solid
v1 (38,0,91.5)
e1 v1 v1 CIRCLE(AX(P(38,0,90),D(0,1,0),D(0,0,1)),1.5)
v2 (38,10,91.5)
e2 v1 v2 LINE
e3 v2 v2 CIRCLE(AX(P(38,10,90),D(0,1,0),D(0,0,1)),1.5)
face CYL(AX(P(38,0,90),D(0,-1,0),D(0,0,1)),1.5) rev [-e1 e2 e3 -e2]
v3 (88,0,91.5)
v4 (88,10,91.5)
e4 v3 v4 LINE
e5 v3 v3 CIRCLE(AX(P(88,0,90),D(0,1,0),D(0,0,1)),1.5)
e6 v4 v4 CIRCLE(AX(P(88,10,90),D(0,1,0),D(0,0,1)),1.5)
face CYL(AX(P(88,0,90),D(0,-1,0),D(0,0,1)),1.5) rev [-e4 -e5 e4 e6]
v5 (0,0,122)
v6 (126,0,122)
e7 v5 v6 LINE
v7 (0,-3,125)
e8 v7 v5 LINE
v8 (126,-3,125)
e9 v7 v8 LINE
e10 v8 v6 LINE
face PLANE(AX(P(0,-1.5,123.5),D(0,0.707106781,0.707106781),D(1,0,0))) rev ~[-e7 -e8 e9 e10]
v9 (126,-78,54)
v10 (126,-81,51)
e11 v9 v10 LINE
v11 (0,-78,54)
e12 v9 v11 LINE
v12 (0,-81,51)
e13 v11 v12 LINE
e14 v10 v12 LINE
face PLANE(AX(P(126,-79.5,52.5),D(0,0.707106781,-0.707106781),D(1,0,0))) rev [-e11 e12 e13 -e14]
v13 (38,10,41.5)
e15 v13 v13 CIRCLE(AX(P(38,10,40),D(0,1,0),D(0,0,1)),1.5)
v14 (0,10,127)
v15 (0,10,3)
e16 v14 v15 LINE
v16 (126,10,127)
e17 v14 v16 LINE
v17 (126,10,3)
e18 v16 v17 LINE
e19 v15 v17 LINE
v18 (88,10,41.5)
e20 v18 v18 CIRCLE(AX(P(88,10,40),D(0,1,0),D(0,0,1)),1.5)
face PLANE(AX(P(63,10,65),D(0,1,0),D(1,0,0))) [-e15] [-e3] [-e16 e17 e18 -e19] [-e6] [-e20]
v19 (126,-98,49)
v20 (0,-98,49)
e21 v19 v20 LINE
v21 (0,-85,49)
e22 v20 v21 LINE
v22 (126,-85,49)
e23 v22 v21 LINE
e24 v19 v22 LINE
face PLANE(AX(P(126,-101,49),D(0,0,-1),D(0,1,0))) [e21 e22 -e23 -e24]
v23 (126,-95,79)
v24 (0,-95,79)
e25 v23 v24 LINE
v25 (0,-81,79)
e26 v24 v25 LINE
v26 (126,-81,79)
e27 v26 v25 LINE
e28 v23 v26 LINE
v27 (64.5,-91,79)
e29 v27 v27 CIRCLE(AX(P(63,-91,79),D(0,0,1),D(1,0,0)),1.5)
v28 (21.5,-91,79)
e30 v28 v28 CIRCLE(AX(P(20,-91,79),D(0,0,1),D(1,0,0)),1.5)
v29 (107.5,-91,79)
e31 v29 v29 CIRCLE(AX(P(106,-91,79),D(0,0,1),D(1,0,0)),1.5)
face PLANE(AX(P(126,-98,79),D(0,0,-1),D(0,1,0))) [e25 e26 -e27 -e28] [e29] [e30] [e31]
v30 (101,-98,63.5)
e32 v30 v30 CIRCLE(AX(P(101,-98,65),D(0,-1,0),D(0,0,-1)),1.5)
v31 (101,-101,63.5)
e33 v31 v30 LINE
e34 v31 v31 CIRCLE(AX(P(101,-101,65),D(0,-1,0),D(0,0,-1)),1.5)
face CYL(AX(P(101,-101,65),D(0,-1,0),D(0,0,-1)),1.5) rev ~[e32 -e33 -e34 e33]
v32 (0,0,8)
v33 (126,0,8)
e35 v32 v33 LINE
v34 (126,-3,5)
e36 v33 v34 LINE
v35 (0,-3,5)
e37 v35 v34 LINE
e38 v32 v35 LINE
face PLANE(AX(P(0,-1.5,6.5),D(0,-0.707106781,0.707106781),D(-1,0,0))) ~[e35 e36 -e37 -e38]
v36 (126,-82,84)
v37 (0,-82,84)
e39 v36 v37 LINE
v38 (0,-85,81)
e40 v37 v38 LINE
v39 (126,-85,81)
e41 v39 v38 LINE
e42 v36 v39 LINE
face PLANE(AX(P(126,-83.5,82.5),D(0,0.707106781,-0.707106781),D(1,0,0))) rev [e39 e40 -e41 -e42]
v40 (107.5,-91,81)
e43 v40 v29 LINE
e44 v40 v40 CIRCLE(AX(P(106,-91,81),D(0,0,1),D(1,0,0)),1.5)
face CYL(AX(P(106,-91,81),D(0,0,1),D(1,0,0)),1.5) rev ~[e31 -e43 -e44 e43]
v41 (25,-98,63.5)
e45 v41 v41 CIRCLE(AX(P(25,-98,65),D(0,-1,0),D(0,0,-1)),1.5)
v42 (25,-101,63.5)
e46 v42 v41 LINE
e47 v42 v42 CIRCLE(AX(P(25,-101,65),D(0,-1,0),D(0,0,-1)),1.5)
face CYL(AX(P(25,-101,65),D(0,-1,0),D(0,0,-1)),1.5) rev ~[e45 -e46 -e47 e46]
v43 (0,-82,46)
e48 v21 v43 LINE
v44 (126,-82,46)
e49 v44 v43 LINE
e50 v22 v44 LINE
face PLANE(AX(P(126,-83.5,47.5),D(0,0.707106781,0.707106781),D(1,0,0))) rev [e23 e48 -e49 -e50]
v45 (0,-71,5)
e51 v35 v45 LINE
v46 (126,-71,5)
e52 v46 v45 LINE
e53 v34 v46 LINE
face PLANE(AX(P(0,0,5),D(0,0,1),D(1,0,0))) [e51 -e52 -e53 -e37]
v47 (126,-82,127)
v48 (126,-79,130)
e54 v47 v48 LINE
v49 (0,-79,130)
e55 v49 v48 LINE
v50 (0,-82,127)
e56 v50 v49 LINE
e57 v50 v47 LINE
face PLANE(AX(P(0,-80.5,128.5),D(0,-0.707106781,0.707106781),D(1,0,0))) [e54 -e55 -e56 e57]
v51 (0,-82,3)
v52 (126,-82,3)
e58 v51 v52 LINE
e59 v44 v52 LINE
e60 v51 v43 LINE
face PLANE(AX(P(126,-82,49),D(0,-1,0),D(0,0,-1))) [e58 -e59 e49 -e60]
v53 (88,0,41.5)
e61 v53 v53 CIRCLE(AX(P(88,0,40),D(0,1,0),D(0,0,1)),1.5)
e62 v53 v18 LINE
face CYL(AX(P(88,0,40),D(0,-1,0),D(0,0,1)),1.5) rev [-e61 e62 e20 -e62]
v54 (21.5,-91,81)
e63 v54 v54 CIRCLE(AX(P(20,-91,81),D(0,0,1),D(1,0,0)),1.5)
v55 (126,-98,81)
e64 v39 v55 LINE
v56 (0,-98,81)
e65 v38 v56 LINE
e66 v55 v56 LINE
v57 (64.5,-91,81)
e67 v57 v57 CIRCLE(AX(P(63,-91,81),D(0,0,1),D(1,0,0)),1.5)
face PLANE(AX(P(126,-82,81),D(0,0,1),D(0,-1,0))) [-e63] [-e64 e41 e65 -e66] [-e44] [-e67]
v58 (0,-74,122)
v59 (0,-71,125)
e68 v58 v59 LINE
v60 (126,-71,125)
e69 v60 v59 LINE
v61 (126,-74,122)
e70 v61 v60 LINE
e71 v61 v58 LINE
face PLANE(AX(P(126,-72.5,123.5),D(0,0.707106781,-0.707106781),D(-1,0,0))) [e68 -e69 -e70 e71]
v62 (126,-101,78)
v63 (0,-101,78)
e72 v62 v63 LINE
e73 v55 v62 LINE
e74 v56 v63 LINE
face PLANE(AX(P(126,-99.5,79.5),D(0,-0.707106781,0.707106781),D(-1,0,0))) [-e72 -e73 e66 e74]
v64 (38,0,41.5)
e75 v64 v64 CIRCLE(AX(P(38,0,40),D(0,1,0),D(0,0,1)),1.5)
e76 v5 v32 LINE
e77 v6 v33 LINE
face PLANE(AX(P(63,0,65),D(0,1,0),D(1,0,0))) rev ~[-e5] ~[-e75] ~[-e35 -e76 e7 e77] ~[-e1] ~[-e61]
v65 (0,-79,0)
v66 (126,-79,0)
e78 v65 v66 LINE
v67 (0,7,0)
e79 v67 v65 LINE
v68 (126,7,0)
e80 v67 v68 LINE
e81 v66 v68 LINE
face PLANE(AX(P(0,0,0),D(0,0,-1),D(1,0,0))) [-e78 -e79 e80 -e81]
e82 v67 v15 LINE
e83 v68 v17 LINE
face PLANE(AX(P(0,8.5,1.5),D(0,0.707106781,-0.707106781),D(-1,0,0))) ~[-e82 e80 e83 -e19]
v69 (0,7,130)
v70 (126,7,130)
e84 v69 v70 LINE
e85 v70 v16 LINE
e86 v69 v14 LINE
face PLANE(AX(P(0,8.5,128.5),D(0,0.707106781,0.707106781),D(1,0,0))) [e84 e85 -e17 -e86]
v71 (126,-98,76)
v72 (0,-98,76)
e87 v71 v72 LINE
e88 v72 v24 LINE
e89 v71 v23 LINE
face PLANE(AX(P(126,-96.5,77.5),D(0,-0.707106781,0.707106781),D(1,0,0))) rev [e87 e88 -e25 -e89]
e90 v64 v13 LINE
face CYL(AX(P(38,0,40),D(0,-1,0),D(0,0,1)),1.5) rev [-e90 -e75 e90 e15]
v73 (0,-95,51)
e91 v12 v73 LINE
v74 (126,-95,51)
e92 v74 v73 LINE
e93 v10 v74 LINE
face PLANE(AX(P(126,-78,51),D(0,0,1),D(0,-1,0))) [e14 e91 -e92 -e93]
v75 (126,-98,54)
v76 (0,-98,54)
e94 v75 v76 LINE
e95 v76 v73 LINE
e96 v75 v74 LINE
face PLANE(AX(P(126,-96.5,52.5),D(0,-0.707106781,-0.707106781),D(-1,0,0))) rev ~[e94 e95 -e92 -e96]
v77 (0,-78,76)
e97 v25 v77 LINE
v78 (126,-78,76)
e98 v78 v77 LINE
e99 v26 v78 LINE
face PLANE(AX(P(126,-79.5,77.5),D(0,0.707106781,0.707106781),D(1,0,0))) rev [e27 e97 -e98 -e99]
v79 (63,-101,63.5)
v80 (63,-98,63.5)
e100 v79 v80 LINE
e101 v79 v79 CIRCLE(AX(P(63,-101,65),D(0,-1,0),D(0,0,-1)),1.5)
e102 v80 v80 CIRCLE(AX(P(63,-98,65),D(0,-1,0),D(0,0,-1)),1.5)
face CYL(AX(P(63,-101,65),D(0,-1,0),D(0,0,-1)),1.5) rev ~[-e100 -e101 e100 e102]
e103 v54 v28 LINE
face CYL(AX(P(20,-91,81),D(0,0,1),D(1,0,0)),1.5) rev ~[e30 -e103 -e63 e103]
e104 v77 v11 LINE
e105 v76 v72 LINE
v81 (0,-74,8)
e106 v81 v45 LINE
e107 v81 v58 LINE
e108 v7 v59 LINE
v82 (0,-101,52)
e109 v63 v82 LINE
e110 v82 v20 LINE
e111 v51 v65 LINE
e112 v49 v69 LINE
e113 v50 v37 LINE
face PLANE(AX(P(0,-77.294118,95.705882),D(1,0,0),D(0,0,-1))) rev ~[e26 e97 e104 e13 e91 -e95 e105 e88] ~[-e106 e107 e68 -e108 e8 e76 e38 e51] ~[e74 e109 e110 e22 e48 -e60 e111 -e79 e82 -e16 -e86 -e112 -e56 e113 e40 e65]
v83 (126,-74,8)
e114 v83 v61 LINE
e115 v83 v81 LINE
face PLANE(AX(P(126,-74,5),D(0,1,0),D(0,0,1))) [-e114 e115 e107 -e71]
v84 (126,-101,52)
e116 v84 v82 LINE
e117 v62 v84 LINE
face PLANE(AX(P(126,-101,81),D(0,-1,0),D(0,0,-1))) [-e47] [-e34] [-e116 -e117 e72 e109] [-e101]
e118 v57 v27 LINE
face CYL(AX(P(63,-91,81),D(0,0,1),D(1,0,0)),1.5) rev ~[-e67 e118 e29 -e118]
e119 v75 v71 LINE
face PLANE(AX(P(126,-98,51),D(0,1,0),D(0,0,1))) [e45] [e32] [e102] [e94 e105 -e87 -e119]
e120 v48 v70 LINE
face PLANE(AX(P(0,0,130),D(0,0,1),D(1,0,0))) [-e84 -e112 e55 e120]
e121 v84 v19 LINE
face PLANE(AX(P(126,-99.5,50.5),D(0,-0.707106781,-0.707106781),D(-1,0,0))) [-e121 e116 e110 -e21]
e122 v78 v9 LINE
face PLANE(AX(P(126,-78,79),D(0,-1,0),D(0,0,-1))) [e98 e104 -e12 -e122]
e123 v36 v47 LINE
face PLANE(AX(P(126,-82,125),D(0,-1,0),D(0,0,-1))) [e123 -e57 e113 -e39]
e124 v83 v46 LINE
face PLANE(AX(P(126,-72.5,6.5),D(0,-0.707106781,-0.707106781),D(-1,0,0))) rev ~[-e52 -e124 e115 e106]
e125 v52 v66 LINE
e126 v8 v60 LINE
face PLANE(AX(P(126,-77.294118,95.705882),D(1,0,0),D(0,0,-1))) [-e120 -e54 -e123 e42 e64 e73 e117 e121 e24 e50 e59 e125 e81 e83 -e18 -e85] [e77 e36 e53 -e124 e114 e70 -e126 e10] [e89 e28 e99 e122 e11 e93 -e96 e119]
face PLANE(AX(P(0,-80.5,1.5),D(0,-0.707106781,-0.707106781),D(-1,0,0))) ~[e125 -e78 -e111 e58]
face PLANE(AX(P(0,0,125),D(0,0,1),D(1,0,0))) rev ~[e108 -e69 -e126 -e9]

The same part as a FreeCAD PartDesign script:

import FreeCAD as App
import Part
import Sketcher
from FreeCAD import Vector


def edges_at(feature, points):
    """Names of the edges that pass closest to the given points."""
    edges = feature.Shape.Edges
    near = lambda p: min(range(len(edges)), key=lambda i: edges[i].distToShape(Part.Vertex(*p))[0])
    return sorted({f"Edge{near(p) + 1}" for p in points})


def add_polygon(sketch, points):
    """Adds a closed chain of lines whose ends are joined by coincident constraints."""
    first, n = sketch.GeometryCount, len(points)
    for a, b in zip(points, points[1:] + points[:1]):
        sketch.addGeometry(Part.LineSegment(App.Vector(*a, 0), App.Vector(*b, 0)), False)
    for i in range(n):
        sketch.addConstraint(Sketcher.Constraint("Coincident", first + i, 2, first + (i + 1) % n, 1))

doc = App.newDocument("Part")
params = doc.addObject("Spreadsheet::Sheet", "Params")
for row, (alias, value) in enumerate([
    ("sketch1_diameter", "3 mm"),
    ("sketch1_width", "126 mm"),
    ("sketch1_height", "130 mm"),
    ("pad1_length", "10 mm"),
    ("sketch2_width", "126 mm"),
    ("sketch2_height", "5 mm"),
    ("pad2_length", "82 mm"),
    ("sketch3_width", "8 mm"),
    ("sketch3_width2", "19 mm"),
    ("sketch3_width3", "20 mm"),
    ("sketch3_height", "44 mm"),
    ("sketch3_height2", "32 mm"),
    ("pad3_length", "126 mm"),
    ("sketch4_diameter", "3 mm"),
    ("pocket1_length", "3 mm"),
    ("sketch5_diameter", "3 mm"),
    ("pocket2_length", "2 mm"),
    ("chamfer_size", "3 mm"),
], start=1):
    params.set(f"A{row}", alias)
    params.set(f"B{row}", "=" + value)
    params.setAlias(f"B{row}", alias)

body = doc.addObject("PartDesign::Body", "Body")

sketch1 = doc.addObject("Sketcher::SketchObject", "Sketch")
body.addObject(sketch1)
sketch1.AttachmentSupport = (doc.XZ_Plane, [""])
sketch1.MapMode = "FlatFace"
add_polygon(sketch1, [(0, 0), (0, 130), (126, 130), (126, 0)])
sketch1.addGeometry(Part.Circle(Vector(38, 90, 0), Vector(0, 0, 1), 1.5), False)
sketch1.addGeometry(Part.Circle(Vector(88, 90, 0), Vector(0, 0, 1), 1.5), False)
sketch1.addGeometry(Part.Circle(Vector(38, 40, 0), Vector(0, 0, 1), 1.5), False)
sketch1.addGeometry(Part.Circle(Vector(88, 40, 0), Vector(0, 0, 1), 1.5), False)
sketch1.addConstraint(Sketcher.Constraint("Vertical", 0))
sketch1.addConstraint(Sketcher.Constraint("Horizontal", 1))
sketch1.addConstraint(Sketcher.Constraint("Vertical", 2))
sketch1.addConstraint(Sketcher.Constraint("Horizontal", 3))
sketch1.addConstraint(Sketcher.Constraint("Coincident", 3, 2, -1, 1))
sketch1.addConstraint(Sketcher.Constraint("Equal", 4, 5))
sketch1.addConstraint(Sketcher.Constraint("Equal", 5, 6))
sketch1.addConstraint(Sketcher.Constraint("Equal", 6, 7))
sketch1.addConstraint(Sketcher.Constraint("Horizontal", 4, 3, 5, 3))
sketch1.addConstraint(Sketcher.Constraint("Horizontal", 6, 3, 7, 3))
sketch1.addConstraint(Sketcher.Constraint("Vertical", 4, 3, 6, 3))
sketch1.addConstraint(Sketcher.Constraint("Vertical", 5, 3, 7, 3))
sketch1.addConstraint(Sketcher.Constraint("Diameter", 4, 3.0))
sketch1.addConstraint(Sketcher.Constraint("DistanceX", 1, 1, 1, 2, 126.0))
sketch1.addConstraint(Sketcher.Constraint("DistanceY", 0, 1, 0, 2, 130.0))
sketch1.addConstraint(Sketcher.Constraint("DistanceX", -1, 1, 4, 3, 38.0))
sketch1.addConstraint(Sketcher.Constraint("DistanceY", -1, 1, 4, 3, 90.0))
sketch1.addConstraint(Sketcher.Constraint("DistanceX", -1, 1, 5, 3, 88.0))
sketch1.addConstraint(Sketcher.Constraint("DistanceY", -1, 1, 6, 3, 40.0))
sketch1.setExpression("Constraints[16]", "Params.sketch1_diameter")
sketch1.setExpression("Constraints[17]", "Params.sketch1_width")
sketch1.setExpression("Constraints[18]", "Params.sketch1_height")
pad1 = doc.addObject("PartDesign::Pad", "Pad")
body.addObject(pad1)
pad1.Profile = sketch1
pad1.setExpression("Length", "Params.pad1_length")
pad1.Reversed = True

sketch2 = doc.addObject("Sketcher::SketchObject", "Sketch001")
body.addObject(sketch2)
sketch2.AttachmentSupport = (doc.XZ_Plane, [""])
sketch2.MapMode = "FlatFace"
add_polygon(sketch2, [(0, 130), (0, 125), (126, 125), (126, 130)])
add_polygon(sketch2, [(0, 5), (0, 0), (126, 0), (126, 5)])
sketch2.addConstraint(Sketcher.Constraint("Vertical", 0))
sketch2.addConstraint(Sketcher.Constraint("Horizontal", 1))
sketch2.addConstraint(Sketcher.Constraint("Vertical", 2))
sketch2.addConstraint(Sketcher.Constraint("Horizontal", 3))
sketch2.addConstraint(Sketcher.Constraint("Vertical", 4))
sketch2.addConstraint(Sketcher.Constraint("Horizontal", 5))
sketch2.addConstraint(Sketcher.Constraint("Vertical", 6))
sketch2.addConstraint(Sketcher.Constraint("Horizontal", 7))
sketch2.addConstraint(Sketcher.Constraint("Coincident", 4, 2, -1, 1))
sketch2.addConstraint(Sketcher.Constraint("PointOnObject", 0, 2, -2))
sketch2.addConstraint(Sketcher.Constraint("Vertical", 2, 2, 5, 2))
sketch2.addConstraint(Sketcher.Constraint("Equal", 2, 4))
sketch2.addConstraint(Sketcher.Constraint("DistanceX", 1, 1, 1, 2, 126.0))
sketch2.addConstraint(Sketcher.Constraint("DistanceY", 0, 2, 0, 1, 5.0))
sketch2.addConstraint(Sketcher.Constraint("DistanceY", -1, 1, 0, 2, 125.0))
sketch2.setExpression("Constraints[20]", "Params.sketch2_width")
sketch2.setExpression("Constraints[21]", "Params.sketch2_height")
pad2 = doc.addObject("PartDesign::Pad", "Pad001")
body.addObject(pad2)
pad2.Profile = sketch2
pad2.setExpression("Length", "Params.pad2_length")

sketch3 = doc.addObject("Sketcher::SketchObject", "Sketch002")
body.addObject(sketch3)
sketch3.AttachmentSupport = (doc.YZ_Plane, [""])
sketch3.MapMode = "FlatFace"
sketch3.AttachmentOffset = App.Placement(Vector(0, 0, 126), App.Rotation())
add_polygon(sketch3, [(-74, 125), (-82, 125), (-82, 81), (-101, 81), (-101, 49), (-82, 49), (-82, 5), (-74, 5)])
add_polygon(sketch3, [(-98, 51), (-98, 79), (-78, 79), (-78, 51)])
sketch3.addConstraint(Sketcher.Constraint("Horizontal", 0))
sketch3.addConstraint(Sketcher.Constraint("Vertical", 1))
sketch3.addConstraint(Sketcher.Constraint("Horizontal", 2))
sketch3.addConstraint(Sketcher.Constraint("Vertical", 3))
sketch3.addConstraint(Sketcher.Constraint("Horizontal", 4))
sketch3.addConstraint(Sketcher.Constraint("Vertical", 5))
sketch3.addConstraint(Sketcher.Constraint("Horizontal", 6))
sketch3.addConstraint(Sketcher.Constraint("Vertical", 7))
sketch3.addConstraint(Sketcher.Constraint("Vertical", 8))
sketch3.addConstraint(Sketcher.Constraint("Horizontal", 9))
sketch3.addConstraint(Sketcher.Constraint("Vertical", 10))
sketch3.addConstraint(Sketcher.Constraint("Horizontal", 11))
sketch3.addConstraint(Sketcher.Constraint("Vertical", 1, 2, 4, 2))
sketch3.addConstraint(Sketcher.Constraint("Equal", 1, 5))
sketch3.addConstraint(Sketcher.Constraint("DistanceX", 0, 2, 0, 1, 8.0))
sketch3.addConstraint(Sketcher.Constraint("DistanceX", 2, 2, 2, 1, 19.0))
sketch3.addConstraint(Sketcher.Constraint("DistanceX", 9, 1, 9, 2, 20.0))
sketch3.addConstraint(Sketcher.Constraint("DistanceY", 1, 2, 1, 1, 44.0))
sketch3.addConstraint(Sketcher.Constraint("DistanceY", 3, 2, 3, 1, 32.0))
sketch3.addConstraint(Sketcher.Constraint("DistanceY", 8, 1, 8, 2, 28.0))
sketch3.addConstraint(Sketcher.Constraint("DistanceX", 0, 2, -1, 1, 82.0))
sketch3.addConstraint(Sketcher.Constraint("DistanceY", -1, 1, 0, 2, 125.0))
sketch3.addConstraint(Sketcher.Constraint("DistanceX", 8, 2, -1, 1, 98.0))
sketch3.addConstraint(Sketcher.Constraint("DistanceY", -1, 1, 8, 2, 79.0))
sketch3.setExpression("Constraints[26]", "Params.sketch3_width")
sketch3.setExpression("Constraints[27]", "Params.sketch3_width2")
sketch3.setExpression("Constraints[28]", "Params.sketch3_width3")
sketch3.setExpression("Constraints[29]", "Params.sketch3_height")
sketch3.setExpression("Constraints[30]", "Params.sketch3_height2")
pad3 = doc.addObject("PartDesign::Pad", "Pad002")
body.addObject(pad3)
pad3.Profile = sketch3
pad3.setExpression("Length", "Params.pad3_length")
pad3.Reversed = True

sketch4 = doc.addObject("Sketcher::SketchObject", "Sketch003")
body.addObject(sketch4)
sketch4.AttachmentSupport = (doc.XZ_Plane, [""])
sketch4.MapMode = "FlatFace"
sketch4.AttachmentOffset = App.Placement(Vector(0, 0, 101), App.Rotation())
sketch4.addGeometry(Part.Circle(Vector(25, 65, 0), Vector(0, 0, 1), 1.5), False)
sketch4.addGeometry(Part.Circle(Vector(63, 65, 0), Vector(0, 0, 1), 1.5), False)
sketch4.addGeometry(Part.Circle(Vector(101, 65, 0), Vector(0, 0, 1), 1.5), False)
sketch4.addConstraint(Sketcher.Constraint("Equal", 0, 1))
sketch4.addConstraint(Sketcher.Constraint("Equal", 1, 2))
sketch4.addConstraint(Sketcher.Constraint("Horizontal", 0, 3, 1, 3))
sketch4.addConstraint(Sketcher.Constraint("Horizontal", 1, 3, 2, 3))
sketch4.addConstraint(Sketcher.Constraint("Diameter", 0, 3.0))
sketch4.addConstraint(Sketcher.Constraint("DistanceX", -1, 1, 0, 3, 25.0))
sketch4.addConstraint(Sketcher.Constraint("DistanceY", -1, 1, 0, 3, 65.0))
sketch4.addConstraint(Sketcher.Constraint("DistanceX", -1, 1, 1, 3, 63.0))
sketch4.addConstraint(Sketcher.Constraint("DistanceX", -1, 1, 2, 3, 101.0))
sketch4.setExpression("Constraints[4]", "Params.sketch4_diameter")
pocket1 = doc.addObject("PartDesign::Pocket", "Pocket")
body.addObject(pocket1)
pocket1.Profile = sketch4
pocket1.setExpression("Length", "Params.pocket1_length")

sketch5 = doc.addObject("Sketcher::SketchObject", "Sketch004")
body.addObject(sketch5)
sketch5.AttachmentSupport = (doc.XY_Plane, [""])
sketch5.MapMode = "FlatFace"
sketch5.AttachmentOffset = App.Placement(Vector(0, 0, 81), App.Rotation())
sketch5.addGeometry(Part.Circle(Vector(106, -91, 0), Vector(0, 0, 1), 1.5), False)
sketch5.addGeometry(Part.Circle(Vector(63, -91, 0), Vector(0, 0, 1), 1.5), False)
sketch5.addGeometry(Part.Circle(Vector(20, -91, 0), Vector(0, 0, 1), 1.5), False)
sketch5.addConstraint(Sketcher.Constraint("Equal", 0, 1))
sketch5.addConstraint(Sketcher.Constraint("Equal", 1, 2))
sketch5.addConstraint(Sketcher.Constraint("Horizontal", 0, 3, 1, 3))
sketch5.addConstraint(Sketcher.Constraint("Horizontal", 1, 3, 2, 3))
sketch5.addConstraint(Sketcher.Constraint("Diameter", 0, 3.0))
sketch5.addConstraint(Sketcher.Constraint("DistanceX", -1, 1, 0, 3, 106.0))
sketch5.addConstraint(Sketcher.Constraint("DistanceY", 0, 3, -1, 1, 91.0))
sketch5.addConstraint(Sketcher.Constraint("DistanceX", -1, 1, 1, 3, 63.0))
sketch5.addConstraint(Sketcher.Constraint("DistanceX", -1, 1, 2, 3, 20.0))
sketch5.setExpression("Constraints[4]", "Params.sketch5_diameter")
pocket2 = doc.addObject("PartDesign::Pocket", "Pocket001")
body.addObject(pocket2)
pocket2.Profile = sketch5
pocket2.setExpression("Length", "Params.pocket2_length")
doc.recompute()

chamfer = doc.addObject("PartDesign::Chamfer", "Chamfer")
body.addObject(chamfer)
chamfer.Base = (pocket2, edges_at(pocket2, [
    (63, 10, 0),
    (63, 0, 125),
    (63, -82, 130),
    (63, 0, 5),
    (63, -82, 0),
    (63, -78, 51),
    (63, -78, 79),
    (63, -98, 79),
    (63, -82, 49),
    (63, -101, 49),
    (63, -101, 81),
    (63, -82, 81),
    (63, -74, 125),
    (63, -74, 5),
    (63, -98, 51),
    (63, 10, 130),
]))
chamfer.setExpression("Size", "Params.chamfer_size")

doc.recompute()
